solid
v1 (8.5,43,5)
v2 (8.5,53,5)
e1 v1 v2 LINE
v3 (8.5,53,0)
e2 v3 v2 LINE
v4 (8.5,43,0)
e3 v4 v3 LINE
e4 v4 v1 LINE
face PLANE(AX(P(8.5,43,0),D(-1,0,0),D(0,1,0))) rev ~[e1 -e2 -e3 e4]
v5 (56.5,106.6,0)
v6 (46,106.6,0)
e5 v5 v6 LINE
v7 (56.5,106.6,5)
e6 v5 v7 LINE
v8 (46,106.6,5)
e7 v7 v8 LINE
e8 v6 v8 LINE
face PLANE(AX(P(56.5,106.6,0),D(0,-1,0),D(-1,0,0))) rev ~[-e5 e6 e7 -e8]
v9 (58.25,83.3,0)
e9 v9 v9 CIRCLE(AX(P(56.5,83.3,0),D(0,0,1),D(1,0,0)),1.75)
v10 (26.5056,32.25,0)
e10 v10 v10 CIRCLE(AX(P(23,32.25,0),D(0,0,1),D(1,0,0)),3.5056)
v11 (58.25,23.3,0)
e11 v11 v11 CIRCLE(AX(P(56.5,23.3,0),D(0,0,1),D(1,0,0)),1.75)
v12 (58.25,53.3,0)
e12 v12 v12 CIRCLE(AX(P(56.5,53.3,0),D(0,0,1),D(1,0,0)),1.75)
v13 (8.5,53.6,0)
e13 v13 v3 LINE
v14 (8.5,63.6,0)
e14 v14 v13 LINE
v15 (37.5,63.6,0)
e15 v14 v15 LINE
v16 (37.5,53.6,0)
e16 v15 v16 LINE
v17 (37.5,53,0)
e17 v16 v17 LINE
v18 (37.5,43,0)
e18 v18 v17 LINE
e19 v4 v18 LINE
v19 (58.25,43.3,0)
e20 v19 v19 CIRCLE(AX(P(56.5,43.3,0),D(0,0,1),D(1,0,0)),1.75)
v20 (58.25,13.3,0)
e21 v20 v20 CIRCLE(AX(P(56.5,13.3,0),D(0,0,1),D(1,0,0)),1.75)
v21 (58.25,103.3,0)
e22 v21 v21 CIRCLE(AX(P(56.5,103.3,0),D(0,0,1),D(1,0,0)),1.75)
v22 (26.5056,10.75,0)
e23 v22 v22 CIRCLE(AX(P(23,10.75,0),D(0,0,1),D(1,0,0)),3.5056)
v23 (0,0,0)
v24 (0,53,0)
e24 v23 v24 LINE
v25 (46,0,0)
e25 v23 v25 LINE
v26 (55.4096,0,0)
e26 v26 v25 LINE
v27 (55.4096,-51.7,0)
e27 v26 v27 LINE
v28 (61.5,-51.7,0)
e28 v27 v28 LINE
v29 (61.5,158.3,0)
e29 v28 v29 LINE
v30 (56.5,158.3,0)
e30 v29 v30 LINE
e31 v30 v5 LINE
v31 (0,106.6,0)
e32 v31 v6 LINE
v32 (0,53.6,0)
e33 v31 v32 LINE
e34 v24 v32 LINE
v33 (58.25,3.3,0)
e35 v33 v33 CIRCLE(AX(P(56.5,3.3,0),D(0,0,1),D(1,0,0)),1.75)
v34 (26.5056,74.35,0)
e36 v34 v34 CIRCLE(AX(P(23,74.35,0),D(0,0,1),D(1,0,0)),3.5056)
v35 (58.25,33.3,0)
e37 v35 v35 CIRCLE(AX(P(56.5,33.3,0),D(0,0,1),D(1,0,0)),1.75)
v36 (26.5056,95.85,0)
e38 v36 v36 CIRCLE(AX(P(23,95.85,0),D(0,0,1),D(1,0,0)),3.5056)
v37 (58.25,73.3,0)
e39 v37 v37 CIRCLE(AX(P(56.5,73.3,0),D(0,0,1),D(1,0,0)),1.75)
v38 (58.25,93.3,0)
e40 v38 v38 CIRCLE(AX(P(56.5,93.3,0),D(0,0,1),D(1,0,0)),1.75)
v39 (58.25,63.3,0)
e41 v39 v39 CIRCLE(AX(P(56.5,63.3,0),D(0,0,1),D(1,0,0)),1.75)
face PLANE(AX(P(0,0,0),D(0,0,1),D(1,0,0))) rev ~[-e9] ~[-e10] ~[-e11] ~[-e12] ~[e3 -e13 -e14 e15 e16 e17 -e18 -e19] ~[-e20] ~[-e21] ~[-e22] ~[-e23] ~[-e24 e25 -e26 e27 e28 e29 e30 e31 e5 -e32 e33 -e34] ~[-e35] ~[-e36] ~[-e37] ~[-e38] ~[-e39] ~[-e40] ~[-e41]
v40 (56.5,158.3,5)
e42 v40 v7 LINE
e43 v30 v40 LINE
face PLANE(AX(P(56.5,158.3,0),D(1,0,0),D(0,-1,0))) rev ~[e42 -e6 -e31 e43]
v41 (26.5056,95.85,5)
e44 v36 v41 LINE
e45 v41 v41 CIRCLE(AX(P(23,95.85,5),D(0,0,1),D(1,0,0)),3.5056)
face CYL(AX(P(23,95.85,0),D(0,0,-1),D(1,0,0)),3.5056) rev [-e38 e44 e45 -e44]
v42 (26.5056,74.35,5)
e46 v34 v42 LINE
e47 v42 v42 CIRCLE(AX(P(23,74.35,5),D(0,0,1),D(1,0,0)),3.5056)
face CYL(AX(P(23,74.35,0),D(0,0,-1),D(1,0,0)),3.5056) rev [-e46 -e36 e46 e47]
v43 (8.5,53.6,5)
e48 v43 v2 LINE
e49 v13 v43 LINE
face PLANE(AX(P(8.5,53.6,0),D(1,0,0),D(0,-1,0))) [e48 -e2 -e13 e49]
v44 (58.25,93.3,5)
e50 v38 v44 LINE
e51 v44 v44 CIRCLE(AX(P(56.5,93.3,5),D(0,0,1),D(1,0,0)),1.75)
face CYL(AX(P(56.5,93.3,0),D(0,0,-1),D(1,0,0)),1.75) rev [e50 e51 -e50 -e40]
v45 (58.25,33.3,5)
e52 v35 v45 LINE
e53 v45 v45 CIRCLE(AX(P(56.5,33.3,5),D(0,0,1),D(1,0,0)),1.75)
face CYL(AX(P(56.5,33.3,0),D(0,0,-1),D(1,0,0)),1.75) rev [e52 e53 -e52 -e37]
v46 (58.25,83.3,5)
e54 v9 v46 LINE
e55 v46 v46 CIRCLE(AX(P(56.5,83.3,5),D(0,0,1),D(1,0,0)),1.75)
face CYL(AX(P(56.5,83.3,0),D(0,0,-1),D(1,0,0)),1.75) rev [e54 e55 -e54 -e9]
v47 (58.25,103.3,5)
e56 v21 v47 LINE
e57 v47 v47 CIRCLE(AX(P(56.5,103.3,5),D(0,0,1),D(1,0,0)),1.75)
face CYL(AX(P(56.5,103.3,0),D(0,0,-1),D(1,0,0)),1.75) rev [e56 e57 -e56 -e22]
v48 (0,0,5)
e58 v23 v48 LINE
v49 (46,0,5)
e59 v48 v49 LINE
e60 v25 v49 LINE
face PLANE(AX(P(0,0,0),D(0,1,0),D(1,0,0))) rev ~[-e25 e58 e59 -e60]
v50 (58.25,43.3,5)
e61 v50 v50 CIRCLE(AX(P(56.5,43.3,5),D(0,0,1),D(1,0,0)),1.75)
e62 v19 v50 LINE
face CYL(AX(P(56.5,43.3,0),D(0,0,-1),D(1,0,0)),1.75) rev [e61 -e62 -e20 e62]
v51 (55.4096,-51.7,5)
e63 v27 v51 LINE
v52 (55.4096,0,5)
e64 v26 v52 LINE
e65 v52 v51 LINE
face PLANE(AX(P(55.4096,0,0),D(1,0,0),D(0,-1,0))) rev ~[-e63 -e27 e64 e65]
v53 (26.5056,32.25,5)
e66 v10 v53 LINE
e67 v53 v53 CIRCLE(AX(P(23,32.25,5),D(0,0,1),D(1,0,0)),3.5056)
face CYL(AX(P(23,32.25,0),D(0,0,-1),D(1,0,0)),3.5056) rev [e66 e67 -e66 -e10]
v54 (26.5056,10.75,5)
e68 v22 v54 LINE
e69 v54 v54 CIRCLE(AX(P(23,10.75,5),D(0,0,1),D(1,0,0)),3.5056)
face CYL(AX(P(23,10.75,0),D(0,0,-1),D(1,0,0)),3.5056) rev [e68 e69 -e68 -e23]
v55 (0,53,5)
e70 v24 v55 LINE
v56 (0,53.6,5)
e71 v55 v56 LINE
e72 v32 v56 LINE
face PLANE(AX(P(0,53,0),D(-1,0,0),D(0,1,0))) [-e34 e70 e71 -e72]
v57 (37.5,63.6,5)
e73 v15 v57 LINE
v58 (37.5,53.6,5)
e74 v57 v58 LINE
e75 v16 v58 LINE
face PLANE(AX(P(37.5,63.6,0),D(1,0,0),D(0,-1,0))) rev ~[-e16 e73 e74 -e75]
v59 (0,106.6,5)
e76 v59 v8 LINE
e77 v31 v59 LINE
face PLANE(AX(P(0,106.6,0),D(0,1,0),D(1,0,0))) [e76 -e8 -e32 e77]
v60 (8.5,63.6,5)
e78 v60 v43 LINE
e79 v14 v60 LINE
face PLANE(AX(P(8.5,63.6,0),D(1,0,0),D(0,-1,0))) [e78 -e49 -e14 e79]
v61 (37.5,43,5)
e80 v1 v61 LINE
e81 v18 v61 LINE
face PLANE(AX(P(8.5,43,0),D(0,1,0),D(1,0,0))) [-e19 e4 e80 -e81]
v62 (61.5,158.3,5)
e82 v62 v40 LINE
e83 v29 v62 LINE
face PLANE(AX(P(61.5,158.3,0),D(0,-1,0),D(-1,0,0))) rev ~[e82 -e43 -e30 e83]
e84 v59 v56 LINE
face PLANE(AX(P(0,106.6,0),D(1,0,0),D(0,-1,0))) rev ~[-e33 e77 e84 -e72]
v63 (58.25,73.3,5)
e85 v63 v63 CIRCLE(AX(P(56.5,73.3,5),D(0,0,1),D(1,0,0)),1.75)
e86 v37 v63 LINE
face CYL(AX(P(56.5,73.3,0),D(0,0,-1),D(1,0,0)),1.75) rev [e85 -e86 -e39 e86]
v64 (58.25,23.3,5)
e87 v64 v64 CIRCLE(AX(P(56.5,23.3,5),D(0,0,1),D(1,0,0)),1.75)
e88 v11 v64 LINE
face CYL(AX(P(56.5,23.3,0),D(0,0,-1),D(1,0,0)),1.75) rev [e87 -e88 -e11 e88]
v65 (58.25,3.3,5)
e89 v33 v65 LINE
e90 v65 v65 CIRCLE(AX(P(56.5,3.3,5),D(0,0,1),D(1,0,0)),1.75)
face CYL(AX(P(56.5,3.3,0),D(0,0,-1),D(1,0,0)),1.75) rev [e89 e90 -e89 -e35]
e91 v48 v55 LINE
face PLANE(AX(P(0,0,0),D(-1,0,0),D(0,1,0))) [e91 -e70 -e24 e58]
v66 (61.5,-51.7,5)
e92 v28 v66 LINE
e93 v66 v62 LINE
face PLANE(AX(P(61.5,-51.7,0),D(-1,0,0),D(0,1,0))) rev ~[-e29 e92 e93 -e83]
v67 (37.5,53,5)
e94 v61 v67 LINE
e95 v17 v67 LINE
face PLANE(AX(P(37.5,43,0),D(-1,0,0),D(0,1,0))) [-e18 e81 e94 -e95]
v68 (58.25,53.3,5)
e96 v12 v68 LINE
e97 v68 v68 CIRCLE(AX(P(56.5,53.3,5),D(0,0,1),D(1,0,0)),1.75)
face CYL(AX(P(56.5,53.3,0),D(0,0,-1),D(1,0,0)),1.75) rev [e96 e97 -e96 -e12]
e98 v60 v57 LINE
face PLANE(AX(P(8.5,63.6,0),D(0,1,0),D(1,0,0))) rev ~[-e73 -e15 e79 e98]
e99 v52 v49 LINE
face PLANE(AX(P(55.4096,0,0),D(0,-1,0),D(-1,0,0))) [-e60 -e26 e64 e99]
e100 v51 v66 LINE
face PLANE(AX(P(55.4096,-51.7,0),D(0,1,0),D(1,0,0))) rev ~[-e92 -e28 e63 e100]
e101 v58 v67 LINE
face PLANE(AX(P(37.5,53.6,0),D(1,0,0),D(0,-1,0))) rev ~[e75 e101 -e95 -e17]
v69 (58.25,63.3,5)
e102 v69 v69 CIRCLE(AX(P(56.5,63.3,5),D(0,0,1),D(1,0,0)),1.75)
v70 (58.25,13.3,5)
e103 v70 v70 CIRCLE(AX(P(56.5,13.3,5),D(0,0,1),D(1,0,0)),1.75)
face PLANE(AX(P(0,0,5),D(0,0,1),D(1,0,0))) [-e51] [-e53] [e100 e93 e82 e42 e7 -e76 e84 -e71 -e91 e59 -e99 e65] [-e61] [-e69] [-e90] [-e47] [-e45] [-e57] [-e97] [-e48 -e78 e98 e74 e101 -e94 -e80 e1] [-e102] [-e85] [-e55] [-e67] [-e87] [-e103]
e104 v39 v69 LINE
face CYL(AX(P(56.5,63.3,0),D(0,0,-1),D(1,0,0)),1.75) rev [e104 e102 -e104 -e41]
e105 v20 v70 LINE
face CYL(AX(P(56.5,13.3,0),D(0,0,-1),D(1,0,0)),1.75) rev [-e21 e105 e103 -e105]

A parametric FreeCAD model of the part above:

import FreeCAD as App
import Part
import Sketcher

V = App.Vector


def add_polygon(sketch, points):
    """Adds a closed chain of lines whose ends are joined by coincident constraints."""
    first, n = sketch.GeometryCount, len(points)
    for a, b in zip(points, points[1:] + points[:1]):
        sketch.addGeometry(Part.LineSegment(App.Vector(*a, 0), App.Vector(*b, 0)), False)
    for i in range(n):
        sketch.addConstraint(Sketcher.Constraint("Coincident", first + i, 2, first + (i + 1) % n, 1))

doc = App.newDocument("Part")
params = doc.addObject("Spreadsheet::Sheet", "Params")
for row, (alias, value) in enumerate([
    ("sketch1_diameter", "3.5 mm"),
    ("sketch1_width", "5 mm"),
    ("sketch1_height", "210 mm"),
    ("sketch1_width2", "29 mm"),
    ("sketch1_width3", "56.5 mm"),
    ("pad1_length", "5 mm"),
], start=1):
    params.set(f"A{row}", alias)
    params.set(f"B{row}", "=" + value)
    params.setAlias(f"B{row}", alias)

body = doc.addObject("PartDesign::Body", "Body")

# Sketch on XY plane
sketch1 = body.newObject("Sketcher::SketchObject", "Sketch")
sketch1.AttachmentSupport = (doc.getObject("XY_Plane"), [""])
sketch1.MapMode = "FlatFace"
add_polygon(sketch1, [(0, 106.6), (0, 0), (55.4, 0), (55.4, -51.7), (61.5, -51.7), (61.5, 158.3), (56.5, 158.3), (56.5, 106.6)])  # lines 0-7
sketch1.addGeometry(Part.Circle(V(23, 10.8, 0), V(0, 0, 1), 3.5), False)  # 8
sketch1.addGeometry(Part.Circle(V(23, 32.2, 0), V(0, 0, 1), 3.5), False)  # 9
sketch1.addGeometry(Part.Circle(V(56.5, 3.3, 0), V(0, 0, 1), 1.8), False)  # 10
sketch1.addGeometry(Part.Circle(V(56.5, 13.3, 0), V(0, 0, 1), 1.8), False)  # 11
sketch1.addGeometry(Part.Circle(V(56.5, 23.3, 0), V(0, 0, 1), 1.8), False)  # 12
sketch1.addGeometry(Part.Circle(V(56.5, 33.3, 0), V(0, 0, 1), 1.8), False)  # 13
sketch1.addGeometry(Part.Circle(V(56.5, 43.3, 0), V(0, 0, 1), 1.8), False)  # 14
add_polygon(sketch1, [(37.5, 63.6), (37.5, 43), (8.5, 43), (8.5, 63.6)])  # lines 15-18
sketch1.addGeometry(Part.Circle(V(23, 74.3, 0), V(0, 0, 1), 3.5), False)  # 19
sketch1.addGeometry(Part.Circle(V(23, 95.8, 0), V(0, 0, 1), 3.5), False)  # 20
sketch1.addGeometry(Part.Circle(V(56.5, 53.3, 0), V(0, 0, 1), 1.8), False)  # 21
sketch1.addGeometry(Part.Circle(V(56.5, 63.3, 0), V(0, 0, 1), 1.8), False)  # 22
sketch1.addGeometry(Part.Circle(V(56.5, 73.3, 0), V(0, 0, 1), 1.8), False)  # 23
sketch1.addGeometry(Part.Circle(V(56.5, 83.3, 0), V(0, 0, 1), 1.8), False)  # 24
sketch1.addGeometry(Part.Circle(V(56.5, 93.3, 0), V(0, 0, 1), 1.8), False)  # 25
sketch1.addGeometry(Part.Circle(V(56.5, 103.3, 0), V(0, 0, 1), 1.8), False)  # 26
sketch1.addConstraint(Sketcher.Constraint("Vertical", 0))
sketch1.addConstraint(Sketcher.Constraint("Horizontal", 1))
sketch1.addConstraint(Sketcher.Constraint("Vertical", 2))
sketch1.addConstraint(Sketcher.Constraint("Horizontal", 3))
sketch1.addConstraint(Sketcher.Constraint("Vertical", 4))
sketch1.addConstraint(Sketcher.Constraint("Horizontal", 5))
sketch1.addConstraint(Sketcher.Constraint("Vertical", 6))
sketch1.addConstraint(Sketcher.Constraint("Horizontal", 7))
sketch1.addConstraint(Sketcher.Constraint("Vertical", 15))
sketch1.addConstraint(Sketcher.Constraint("Horizontal", 16))
sketch1.addConstraint(Sketcher.Constraint("Vertical", 17))
sketch1.addConstraint(Sketcher.Constraint("Horizontal", 18))
sketch1.addConstraint(Sketcher.Constraint("Coincident", 0, 2, -1, 1))
sketch1.addConstraint(Sketcher.Constraint("Equal", 8, 9))
sketch1.addConstraint(Sketcher.Constraint("Equal", 10, 11))
sketch1.addConstraint(Sketcher.Constraint("Equal", 11, 12))
sketch1.addConstraint(Sketcher.Constraint("Equal", 12, 13))
sketch1.addConstraint(Sketcher.Constraint("Equal", 13, 14))
sketch1.addConstraint(Sketcher.Constraint("Equal", 9, 19))
sketch1.addConstraint(Sketcher.Constraint("Equal", 19, 20))
sketch1.addConstraint(Sketcher.Constraint("Equal", 14, 21))
sketch1.addConstraint(Sketcher.Constraint("Equal", 21, 22))
sketch1.addConstraint(Sketcher.Constraint("Equal", 22, 23))
sketch1.addConstraint(Sketcher.Constraint("Equal", 23, 24))
sketch1.addConstraint(Sketcher.Constraint("Equal", 24, 25))
sketch1.addConstraint(Sketcher.Constraint("Equal", 25, 26))
sketch1.addConstraint(Sketcher.Constraint("Vertical", 8, 3, 9, 3))
sketch1.addConstraint(Sketcher.Constraint("Vertical", 10, 3, 11, 3))
sketch1.addConstraint(Sketcher.Constraint("Vertical", 11, 3, 12, 3))
sketch1.addConstraint(Sketcher.Constraint("Vertical", 12, 3, 13, 3))
sketch1.addConstraint(Sketcher.Constraint("Vertical", 13, 3, 14, 3))
sketch1.addConstraint(Sketcher.Constraint("Vertical", 9, 3, 19, 3))
sketch1.addConstraint(Sketcher.Constraint("Vertical", 19, 3, 20, 3))
sketch1.addConstraint(Sketcher.Constraint("Vertical", 14, 3, 21, 3))
sketch1.addConstraint(Sketcher.Constraint("Vertical", 21, 3, 22, 3))
sketch1.addConstraint(Sketcher.Constraint("Vertical", 22, 3, 23, 3))
sketch1.addConstraint(Sketcher.Constraint("Vertical", 23, 3, 24, 3))
sketch1.addConstraint(Sketcher.Constraint("Vertical", 24, 3, 25, 3))
sketch1.addConstraint(Sketcher.Constraint("Vertical", 25, 3, 26, 3))
sketch1.addConstraint(Sketcher.Constraint("Vertical", 26, 3, 5, 2))
sketch1.addConstraint(Sketcher.Constraint("Equal", 2, 6))
sketch1.addConstraint(Sketcher.Constraint("Diameter", 10, 3.5))
sketch1.addConstraint(Sketcher.Constraint("DistanceX", 5, 2, 5, 1, 5.0))
sketch1.addConstraint(Sketcher.Constraint("DistanceY", 4, 1, 4, 2, 210.0))
sketch1.addConstraint(Sketcher.Constraint("DistanceY", 10, 3, 11, 3, 10.0))
sketch1.addConstraint(Sketcher.Constraint("DistanceY", 11, 3, 12, 3, 10.0))
sketch1.addConstraint(Sketcher.Constraint("DistanceY", 12, 3, 13, 3, 10.0))
sketch1.addConstraint(Sketcher.Constraint("DistanceY", 13, 3, 14, 3, 10.0))
sketch1.addConstraint(Sketcher.Constraint("DistanceY", 14, 3, 21, 3, 10.0))
sketch1.addConstraint(Sketcher.Constraint("DistanceY", 21, 3, 22, 3, 10.0))
sketch1.addConstraint(Sketcher.Constraint("DistanceY", 22, 3, 23, 3, 10.0))
sketch1.addConstraint(Sketcher.Constraint("DistanceY", 23, 3, 24, 3, 10.0))
sketch1.addConstraint(Sketcher.Constraint("DistanceY", 24, 3, 25, 3, 10.0))
sketch1.addConstraint(Sketcher.Constraint("DistanceY", 25, 3, 26, 3, 10.0))
sketch1.addConstraint(Sketcher.Constraint("DistanceX", 8, 3, 3, 2, 38.5))
sketch1.addConstraint(Sketcher.Constraint("DistanceX", 16, 2, 16, 1, 29.0))
sketch1.addConstraint(Sketcher.Constraint("DistanceX", 7, 2, 7, 1, 56.5))
sketch1.addConstraint(Sketcher.Constraint("DistanceY", 0, 2, 0, 1, 106.6))
sketch1.addConstraint(Sketcher.Constraint("DistanceY", 15, 2, 15, 1, 20.6))
sketch1.addConstraint(Sketcher.Constraint("DistanceY", -1, 1, 15, 2, 43.0))
sketch1.addConstraint(Sketcher.Constraint("DistanceY", 2, 2, 10, 3, 55.0))
sketch1.addConstraint(Sketcher.Constraint("DistanceX", 15, 2, 14, 3, 19.0))
sketch1.addConstraint(Sketcher.Constraint("Diameter", 8, 7.0112))
sketch1.addConstraint(Sketcher.Constraint("DistanceY", 8, 3, 9, 3, 21.5))
sketch1.addConstraint(Sketcher.Constraint("DistanceY", 9, 3, 19, 3, 42.1))
sketch1.addConstraint(Sketcher.Constraint("DistanceY", 19, 3, 20, 3, 21.5))
sketch1.addConstraint(Sketcher.Constraint("DistanceY", -1, 1, 8, 3, 10.75))
sketch1.addConstraint(Sketcher.Constraint("DistanceX", 1, 1, 1, 2, 55.4096))
sketch1.setExpression("Constraints[53]", "Params.sketch1_diameter")
sketch1.setExpression("Constraints[54]", "Params.sketch1_width")
sketch1.setExpression("Constraints[55]", "Params.sketch1_height")
sketch1.setExpression("Constraints[67]", "Params.sketch1_width2")
sketch1.setExpression("Constraints[68]", "Params.sketch1_width3")
pad1 = body.newObject("PartDesign::Pad", "Pad")
pad1.Profile = sketch1
pad1.setExpression("Length", "Params.pad1_length")

doc.recompute()
